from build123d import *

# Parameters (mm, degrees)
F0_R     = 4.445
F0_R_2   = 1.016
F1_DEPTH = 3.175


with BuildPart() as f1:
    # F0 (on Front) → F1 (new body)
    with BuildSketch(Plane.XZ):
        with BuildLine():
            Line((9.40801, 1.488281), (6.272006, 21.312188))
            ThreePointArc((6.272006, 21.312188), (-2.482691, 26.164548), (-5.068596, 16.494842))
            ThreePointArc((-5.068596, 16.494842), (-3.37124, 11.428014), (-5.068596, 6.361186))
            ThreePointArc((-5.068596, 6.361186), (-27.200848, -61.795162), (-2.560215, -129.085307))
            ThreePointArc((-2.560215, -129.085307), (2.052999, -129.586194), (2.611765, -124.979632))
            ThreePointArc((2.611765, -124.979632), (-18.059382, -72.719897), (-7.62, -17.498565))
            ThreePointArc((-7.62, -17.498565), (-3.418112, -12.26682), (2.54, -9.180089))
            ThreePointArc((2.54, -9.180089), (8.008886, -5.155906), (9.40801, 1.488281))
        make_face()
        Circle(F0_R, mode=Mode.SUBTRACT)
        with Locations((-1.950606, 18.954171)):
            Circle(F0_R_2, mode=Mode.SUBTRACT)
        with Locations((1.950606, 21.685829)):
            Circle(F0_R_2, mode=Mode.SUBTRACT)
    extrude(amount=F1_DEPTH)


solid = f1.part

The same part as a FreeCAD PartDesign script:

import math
import FreeCAD as App
import Part
import Sketcher
from FreeCAD import Vector
Q = App.Units.Quantity

doc = App.newDocument("Part")
body = doc.addObject("PartDesign::Body", "Body")

# Sketch on XZ plane
sketch1 = doc.addObject("Sketcher::SketchObject", "Sketch")
body.addObject(sketch1)
sketch1.AttachmentSupport = (doc.XZ_Plane, [""])
sketch1.MapMode = "FlatFace"
sketch1.addGeometry([
    Part.LineSegment(Vector(9.4, 1.5, 0), Vector(6.3, 21.3, 0)),  # 0
    Part.ArcOfCircle(Part.Circle(Vector(0, 20.3, 0), Vector(0, 0, 1), 6.3), math.radians(9), math.radians(217)),  # 1
    Part.ArcOfCircle(Part.Circle(Vector(-11.8, 11.4, 0), Vector(0, 0, 1), 8.4), math.radians(-37), math.radians(37)),  # 2
    Part.ArcOfCircle(Part.Circle(Vector(82.6, -59.8, 0), Vector(0, 0, 1), 109.8), math.radians(143), math.radians(219)),  # 3
    Part.ArcOfCircle(Part.Circle(Vector(0, -127, 0), Vector(0, 0, 1), 3.3), math.radians(-141), math.radians(38)),  # 4
    Part.ArcOfCircle(Part.Circle(Vector(82.6, -63.1, 0), Vector(0, 0, 1), 101.1), math.radians(153), math.radians(218)),  # 5
    Part.ArcOfCircle(Part.Circle(Vector(6.9, -24.8, 0), Vector(0, 0, 1), 16.2), math.radians(105), math.radians(153)),  # 6
    Part.ArcOfCircle(Part.Circle(Vector(0, 0, 0), Vector(0, 0, 1), 9.5), math.radians(-75), math.radians(9)),  # 7
    Part.Circle(Vector(0, 0, 0), Vector(0, 0, 1), 4.4),  # 8
    Part.Circle(Vector(-2, 19, 0), Vector(0, 0, 1), 1),  # 9
    Part.Circle(Vector(2, 21.7, 0), Vector(0, 0, 1), 1),  # 10
], False)
sketch1.addConstraint([
    Sketcher.Constraint("Tangent", 0, 2, 1, 1),
    Sketcher.Constraint("Tangent", 1, 2, 2, 2),
    Sketcher.Constraint("Tangent", 2, 1, 3, 1),
    Sketcher.Constraint("Tangent", 3, 2, 4, 1),
    Sketcher.Constraint("Tangent", 4, 2, 5, 2),
    Sketcher.Constraint("Tangent", 5, 1, 6, 2),
    Sketcher.Constraint("Tangent", 6, 1, 7, 1),
    Sketcher.Constraint("Tangent", 7, 2, 0, 1),
    Sketcher.Constraint("Coincident", 7, 3, -1, 1),
    Sketcher.Constraint("Coincident", 8, 3, -1, 1),
    Sketcher.Constraint("Equal", 9, 10),
    Sketcher.Constraint("PointOnObject", 1, 3, -2),
    Sketcher.Constraint("PointOnObject", 4, 3, -2),
    Sketcher.Constraint("Vertical", 1, 2, 2, 1),
    Sketcher.Constraint("Diameter", 8, Q("0.35 in")),
    Sketcher.Constraint("Diameter", 9, Q("0.08 in")),
    Sketcher.Constraint("Radius", 1, Q("0.25 in")),
    Sketcher.Constraint("Radius", 4, Q("0.13 in")),
    Sketcher.Constraint("DistanceY", 4, 3, -1, 1, Q("5 in")),
    Sketcher.Constraint("Radius", 7, Q("0.3750001 in")),
    Sketcher.Constraint("DistanceY", -1, 1, 1, 3, Q("0.8 in")),
    Sketcher.Constraint("DistanceX", 5, 1, -1, 1, Q("0.3 in")),
    Sketcher.Constraint("DistanceX", -1, 1, 6, 1, Q("0.1 in")),
    Sketcher.Constraint("DistanceX", -1, 1, 3, 3, Q("3.25 in")),
    Sketcher.Constraint("DistanceX", -1, 1, 5, 3, Q("3.2500001 in")),
    Sketcher.Constraint("Radius", 2, 8.411248),
    Sketcher.Constraint("DistanceX", 10, 3, 0, 2, 4.3214),
    Sketcher.Constraint("DistanceY", -1, 1, 9, 3, 18.954171),
    Sketcher.Constraint("DistanceY", -1, 1, 10, 3, 21.685829),
    Sketcher.Constraint("DistanceX", 2, 3, 9, 3, 9.831882),
])
pad1 = doc.addObject("PartDesign::Pad", "Pad")
body.addObject(pad1)
pad1.Profile = sketch1
pad1.Length = Q("0.125 in")

doc.recompute()
